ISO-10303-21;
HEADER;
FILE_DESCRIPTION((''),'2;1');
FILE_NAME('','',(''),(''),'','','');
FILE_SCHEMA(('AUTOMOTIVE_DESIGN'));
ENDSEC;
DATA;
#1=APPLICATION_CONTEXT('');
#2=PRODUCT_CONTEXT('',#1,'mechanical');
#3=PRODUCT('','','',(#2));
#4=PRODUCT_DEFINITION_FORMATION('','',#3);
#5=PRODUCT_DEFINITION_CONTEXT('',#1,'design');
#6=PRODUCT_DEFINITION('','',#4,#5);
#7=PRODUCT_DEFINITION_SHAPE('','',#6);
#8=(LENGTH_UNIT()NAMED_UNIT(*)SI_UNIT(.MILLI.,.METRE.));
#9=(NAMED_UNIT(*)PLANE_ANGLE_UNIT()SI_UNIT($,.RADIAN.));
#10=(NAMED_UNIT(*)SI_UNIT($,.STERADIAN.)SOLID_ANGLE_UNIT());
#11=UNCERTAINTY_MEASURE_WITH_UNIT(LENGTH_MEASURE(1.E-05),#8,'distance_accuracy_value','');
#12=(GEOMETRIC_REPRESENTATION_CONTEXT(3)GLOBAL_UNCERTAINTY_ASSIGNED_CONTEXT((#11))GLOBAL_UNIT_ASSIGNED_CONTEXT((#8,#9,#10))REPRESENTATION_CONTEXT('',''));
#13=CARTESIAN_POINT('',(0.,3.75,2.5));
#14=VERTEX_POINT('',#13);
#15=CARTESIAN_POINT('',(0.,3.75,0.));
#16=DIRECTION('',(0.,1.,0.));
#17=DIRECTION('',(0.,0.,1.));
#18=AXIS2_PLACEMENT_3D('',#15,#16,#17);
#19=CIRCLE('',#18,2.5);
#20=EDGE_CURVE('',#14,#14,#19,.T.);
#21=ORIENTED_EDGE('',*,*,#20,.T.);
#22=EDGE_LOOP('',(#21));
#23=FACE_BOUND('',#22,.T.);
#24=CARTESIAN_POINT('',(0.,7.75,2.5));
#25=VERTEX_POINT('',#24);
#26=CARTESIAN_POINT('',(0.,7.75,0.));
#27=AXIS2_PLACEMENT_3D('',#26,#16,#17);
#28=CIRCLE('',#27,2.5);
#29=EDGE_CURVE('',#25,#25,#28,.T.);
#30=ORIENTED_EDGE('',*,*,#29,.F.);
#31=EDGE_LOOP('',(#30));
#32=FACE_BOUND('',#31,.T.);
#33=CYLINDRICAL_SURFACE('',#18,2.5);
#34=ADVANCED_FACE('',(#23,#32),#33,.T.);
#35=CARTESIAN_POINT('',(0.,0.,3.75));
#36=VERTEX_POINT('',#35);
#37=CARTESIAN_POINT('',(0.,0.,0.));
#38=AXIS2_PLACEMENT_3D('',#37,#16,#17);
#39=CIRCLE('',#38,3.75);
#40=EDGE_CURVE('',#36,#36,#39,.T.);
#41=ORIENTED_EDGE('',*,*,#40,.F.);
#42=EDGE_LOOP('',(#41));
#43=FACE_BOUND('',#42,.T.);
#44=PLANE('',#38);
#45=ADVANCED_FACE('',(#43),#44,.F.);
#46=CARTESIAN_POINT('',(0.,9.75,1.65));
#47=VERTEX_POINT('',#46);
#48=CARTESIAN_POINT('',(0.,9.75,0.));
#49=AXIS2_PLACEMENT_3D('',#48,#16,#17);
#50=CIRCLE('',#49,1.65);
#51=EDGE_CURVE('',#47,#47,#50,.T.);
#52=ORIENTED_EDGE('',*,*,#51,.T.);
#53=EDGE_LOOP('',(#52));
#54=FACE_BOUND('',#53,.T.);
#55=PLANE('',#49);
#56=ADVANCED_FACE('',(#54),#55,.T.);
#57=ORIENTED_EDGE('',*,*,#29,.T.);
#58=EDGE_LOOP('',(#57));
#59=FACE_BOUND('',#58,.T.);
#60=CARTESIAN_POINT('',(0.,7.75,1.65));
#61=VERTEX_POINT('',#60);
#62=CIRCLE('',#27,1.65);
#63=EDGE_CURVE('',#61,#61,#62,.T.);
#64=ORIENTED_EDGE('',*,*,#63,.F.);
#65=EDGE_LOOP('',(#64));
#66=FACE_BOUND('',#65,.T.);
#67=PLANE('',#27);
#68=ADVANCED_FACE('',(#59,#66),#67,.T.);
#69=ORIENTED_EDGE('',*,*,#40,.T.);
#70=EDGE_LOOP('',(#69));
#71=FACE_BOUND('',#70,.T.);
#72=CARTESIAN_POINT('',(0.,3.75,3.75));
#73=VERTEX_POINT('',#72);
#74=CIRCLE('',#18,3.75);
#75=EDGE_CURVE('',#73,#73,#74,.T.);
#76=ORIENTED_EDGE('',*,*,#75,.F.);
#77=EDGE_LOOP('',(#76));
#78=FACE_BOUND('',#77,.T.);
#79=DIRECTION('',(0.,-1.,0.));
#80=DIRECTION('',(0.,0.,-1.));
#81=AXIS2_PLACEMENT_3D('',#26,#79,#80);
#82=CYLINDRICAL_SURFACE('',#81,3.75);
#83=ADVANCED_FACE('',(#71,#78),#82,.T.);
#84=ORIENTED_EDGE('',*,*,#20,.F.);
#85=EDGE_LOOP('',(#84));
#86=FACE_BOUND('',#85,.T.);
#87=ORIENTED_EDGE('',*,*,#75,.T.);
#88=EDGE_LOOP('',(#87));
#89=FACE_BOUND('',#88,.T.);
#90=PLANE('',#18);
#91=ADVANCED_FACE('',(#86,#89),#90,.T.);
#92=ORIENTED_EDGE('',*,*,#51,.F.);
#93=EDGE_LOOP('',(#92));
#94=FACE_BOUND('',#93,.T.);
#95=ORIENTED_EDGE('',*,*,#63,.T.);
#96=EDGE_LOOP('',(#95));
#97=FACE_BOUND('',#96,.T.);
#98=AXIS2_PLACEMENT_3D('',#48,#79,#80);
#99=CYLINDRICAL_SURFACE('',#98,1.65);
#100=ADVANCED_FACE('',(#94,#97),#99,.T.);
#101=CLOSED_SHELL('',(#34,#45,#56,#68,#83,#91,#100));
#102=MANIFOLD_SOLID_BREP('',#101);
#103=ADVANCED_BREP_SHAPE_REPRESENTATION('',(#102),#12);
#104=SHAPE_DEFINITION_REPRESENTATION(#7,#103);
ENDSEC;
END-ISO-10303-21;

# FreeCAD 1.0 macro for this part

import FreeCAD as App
import Part
import Sketcher
from FreeCAD import Vector

doc = App.newDocument("Part")
body = doc.addObject("PartDesign::Body", "Body")

sketch1 = doc.addObject("Sketcher::SketchObject", "Sketch")
body.addObject(sketch1)
sketch1.AttachmentSupport = (doc.XZ_Plane, [""])
sketch1.MapMode = "FlatFace"
sketch1.addGeometry(Part.Circle(Vector(0, 0, 0), Vector(0, 0, 1), 3.8), False)
sketch1.addConstraint([
    Sketcher.Constraint("Coincident", 0, 3, -1, 1),
    Sketcher.Constraint("Diameter", 0, 7.5),
])
pad1 = doc.addObject("PartDesign::Pad", "Pad")
body.addObject(pad1)
pad1.Profile = sketch1
pad1.Length = 7.75
pad1.Reversed = True

sketch2 = doc.addObject("Sketcher::SketchObject", "Sketch001")
body.addObject(sketch2)
sketch2.AttachmentSupport = (doc.XZ_Plane, [""])
sketch2.MapMode = "FlatFace"
sketch2.AttachmentOffset = App.Placement(Vector(0, 0, -7.75), App.Rotation())
sketch2.addGeometry([
    Part.Circle(Vector(0, 0, 0), Vector(0, 0, 1), 3.8),
    Part.Circle(Vector(0, 0, 0), Vector(0, 0, 1), 2.5),
], False)
sketch2.addConstraint([
    Sketcher.Constraint("Coincident", 0, 3, -1, 1),
    Sketcher.Constraint("Coincident", 1, 3, -1, 1),
    Sketcher.Constraint("Diameter", 1, 5.0),
    Sketcher.Constraint("Diameter", 0, 7.5),
])
pocket1 = doc.addObject("PartDesign::Pocket", "Pocket")
body.addObject(pocket1)
pocket1.Profile = sketch2
pocket1.Length = 4
pocket1.Reversed = True

sketch3 = doc.addObject("Sketcher::SketchObject", "Sketch002")
body.addObject(sketch3)
sketch3.AttachmentSupport = (doc.XZ_Plane, [""])
sketch3.MapMode = "FlatFace"
sketch3.AttachmentOffset = App.Placement(Vector(0, 0, -7.75), App.Rotation())
sketch3.addGeometry(Part.Circle(Vector(0, 0, 0), Vector(0, 0, 1), 1.6), False)
sketch3.addConstraint([
    Sketcher.Constraint("Coincident", 0, 3, -1, 1),
    Sketcher.Constraint("Diameter", 0, 3.3),
])
pad2 = doc.addObject("PartDesign::Pad", "Pad001")
body.addObject(pad2)
pad2.Profile = sketch3
pad2.Length = 2
pad2.Reversed = True

doc.recompute()
